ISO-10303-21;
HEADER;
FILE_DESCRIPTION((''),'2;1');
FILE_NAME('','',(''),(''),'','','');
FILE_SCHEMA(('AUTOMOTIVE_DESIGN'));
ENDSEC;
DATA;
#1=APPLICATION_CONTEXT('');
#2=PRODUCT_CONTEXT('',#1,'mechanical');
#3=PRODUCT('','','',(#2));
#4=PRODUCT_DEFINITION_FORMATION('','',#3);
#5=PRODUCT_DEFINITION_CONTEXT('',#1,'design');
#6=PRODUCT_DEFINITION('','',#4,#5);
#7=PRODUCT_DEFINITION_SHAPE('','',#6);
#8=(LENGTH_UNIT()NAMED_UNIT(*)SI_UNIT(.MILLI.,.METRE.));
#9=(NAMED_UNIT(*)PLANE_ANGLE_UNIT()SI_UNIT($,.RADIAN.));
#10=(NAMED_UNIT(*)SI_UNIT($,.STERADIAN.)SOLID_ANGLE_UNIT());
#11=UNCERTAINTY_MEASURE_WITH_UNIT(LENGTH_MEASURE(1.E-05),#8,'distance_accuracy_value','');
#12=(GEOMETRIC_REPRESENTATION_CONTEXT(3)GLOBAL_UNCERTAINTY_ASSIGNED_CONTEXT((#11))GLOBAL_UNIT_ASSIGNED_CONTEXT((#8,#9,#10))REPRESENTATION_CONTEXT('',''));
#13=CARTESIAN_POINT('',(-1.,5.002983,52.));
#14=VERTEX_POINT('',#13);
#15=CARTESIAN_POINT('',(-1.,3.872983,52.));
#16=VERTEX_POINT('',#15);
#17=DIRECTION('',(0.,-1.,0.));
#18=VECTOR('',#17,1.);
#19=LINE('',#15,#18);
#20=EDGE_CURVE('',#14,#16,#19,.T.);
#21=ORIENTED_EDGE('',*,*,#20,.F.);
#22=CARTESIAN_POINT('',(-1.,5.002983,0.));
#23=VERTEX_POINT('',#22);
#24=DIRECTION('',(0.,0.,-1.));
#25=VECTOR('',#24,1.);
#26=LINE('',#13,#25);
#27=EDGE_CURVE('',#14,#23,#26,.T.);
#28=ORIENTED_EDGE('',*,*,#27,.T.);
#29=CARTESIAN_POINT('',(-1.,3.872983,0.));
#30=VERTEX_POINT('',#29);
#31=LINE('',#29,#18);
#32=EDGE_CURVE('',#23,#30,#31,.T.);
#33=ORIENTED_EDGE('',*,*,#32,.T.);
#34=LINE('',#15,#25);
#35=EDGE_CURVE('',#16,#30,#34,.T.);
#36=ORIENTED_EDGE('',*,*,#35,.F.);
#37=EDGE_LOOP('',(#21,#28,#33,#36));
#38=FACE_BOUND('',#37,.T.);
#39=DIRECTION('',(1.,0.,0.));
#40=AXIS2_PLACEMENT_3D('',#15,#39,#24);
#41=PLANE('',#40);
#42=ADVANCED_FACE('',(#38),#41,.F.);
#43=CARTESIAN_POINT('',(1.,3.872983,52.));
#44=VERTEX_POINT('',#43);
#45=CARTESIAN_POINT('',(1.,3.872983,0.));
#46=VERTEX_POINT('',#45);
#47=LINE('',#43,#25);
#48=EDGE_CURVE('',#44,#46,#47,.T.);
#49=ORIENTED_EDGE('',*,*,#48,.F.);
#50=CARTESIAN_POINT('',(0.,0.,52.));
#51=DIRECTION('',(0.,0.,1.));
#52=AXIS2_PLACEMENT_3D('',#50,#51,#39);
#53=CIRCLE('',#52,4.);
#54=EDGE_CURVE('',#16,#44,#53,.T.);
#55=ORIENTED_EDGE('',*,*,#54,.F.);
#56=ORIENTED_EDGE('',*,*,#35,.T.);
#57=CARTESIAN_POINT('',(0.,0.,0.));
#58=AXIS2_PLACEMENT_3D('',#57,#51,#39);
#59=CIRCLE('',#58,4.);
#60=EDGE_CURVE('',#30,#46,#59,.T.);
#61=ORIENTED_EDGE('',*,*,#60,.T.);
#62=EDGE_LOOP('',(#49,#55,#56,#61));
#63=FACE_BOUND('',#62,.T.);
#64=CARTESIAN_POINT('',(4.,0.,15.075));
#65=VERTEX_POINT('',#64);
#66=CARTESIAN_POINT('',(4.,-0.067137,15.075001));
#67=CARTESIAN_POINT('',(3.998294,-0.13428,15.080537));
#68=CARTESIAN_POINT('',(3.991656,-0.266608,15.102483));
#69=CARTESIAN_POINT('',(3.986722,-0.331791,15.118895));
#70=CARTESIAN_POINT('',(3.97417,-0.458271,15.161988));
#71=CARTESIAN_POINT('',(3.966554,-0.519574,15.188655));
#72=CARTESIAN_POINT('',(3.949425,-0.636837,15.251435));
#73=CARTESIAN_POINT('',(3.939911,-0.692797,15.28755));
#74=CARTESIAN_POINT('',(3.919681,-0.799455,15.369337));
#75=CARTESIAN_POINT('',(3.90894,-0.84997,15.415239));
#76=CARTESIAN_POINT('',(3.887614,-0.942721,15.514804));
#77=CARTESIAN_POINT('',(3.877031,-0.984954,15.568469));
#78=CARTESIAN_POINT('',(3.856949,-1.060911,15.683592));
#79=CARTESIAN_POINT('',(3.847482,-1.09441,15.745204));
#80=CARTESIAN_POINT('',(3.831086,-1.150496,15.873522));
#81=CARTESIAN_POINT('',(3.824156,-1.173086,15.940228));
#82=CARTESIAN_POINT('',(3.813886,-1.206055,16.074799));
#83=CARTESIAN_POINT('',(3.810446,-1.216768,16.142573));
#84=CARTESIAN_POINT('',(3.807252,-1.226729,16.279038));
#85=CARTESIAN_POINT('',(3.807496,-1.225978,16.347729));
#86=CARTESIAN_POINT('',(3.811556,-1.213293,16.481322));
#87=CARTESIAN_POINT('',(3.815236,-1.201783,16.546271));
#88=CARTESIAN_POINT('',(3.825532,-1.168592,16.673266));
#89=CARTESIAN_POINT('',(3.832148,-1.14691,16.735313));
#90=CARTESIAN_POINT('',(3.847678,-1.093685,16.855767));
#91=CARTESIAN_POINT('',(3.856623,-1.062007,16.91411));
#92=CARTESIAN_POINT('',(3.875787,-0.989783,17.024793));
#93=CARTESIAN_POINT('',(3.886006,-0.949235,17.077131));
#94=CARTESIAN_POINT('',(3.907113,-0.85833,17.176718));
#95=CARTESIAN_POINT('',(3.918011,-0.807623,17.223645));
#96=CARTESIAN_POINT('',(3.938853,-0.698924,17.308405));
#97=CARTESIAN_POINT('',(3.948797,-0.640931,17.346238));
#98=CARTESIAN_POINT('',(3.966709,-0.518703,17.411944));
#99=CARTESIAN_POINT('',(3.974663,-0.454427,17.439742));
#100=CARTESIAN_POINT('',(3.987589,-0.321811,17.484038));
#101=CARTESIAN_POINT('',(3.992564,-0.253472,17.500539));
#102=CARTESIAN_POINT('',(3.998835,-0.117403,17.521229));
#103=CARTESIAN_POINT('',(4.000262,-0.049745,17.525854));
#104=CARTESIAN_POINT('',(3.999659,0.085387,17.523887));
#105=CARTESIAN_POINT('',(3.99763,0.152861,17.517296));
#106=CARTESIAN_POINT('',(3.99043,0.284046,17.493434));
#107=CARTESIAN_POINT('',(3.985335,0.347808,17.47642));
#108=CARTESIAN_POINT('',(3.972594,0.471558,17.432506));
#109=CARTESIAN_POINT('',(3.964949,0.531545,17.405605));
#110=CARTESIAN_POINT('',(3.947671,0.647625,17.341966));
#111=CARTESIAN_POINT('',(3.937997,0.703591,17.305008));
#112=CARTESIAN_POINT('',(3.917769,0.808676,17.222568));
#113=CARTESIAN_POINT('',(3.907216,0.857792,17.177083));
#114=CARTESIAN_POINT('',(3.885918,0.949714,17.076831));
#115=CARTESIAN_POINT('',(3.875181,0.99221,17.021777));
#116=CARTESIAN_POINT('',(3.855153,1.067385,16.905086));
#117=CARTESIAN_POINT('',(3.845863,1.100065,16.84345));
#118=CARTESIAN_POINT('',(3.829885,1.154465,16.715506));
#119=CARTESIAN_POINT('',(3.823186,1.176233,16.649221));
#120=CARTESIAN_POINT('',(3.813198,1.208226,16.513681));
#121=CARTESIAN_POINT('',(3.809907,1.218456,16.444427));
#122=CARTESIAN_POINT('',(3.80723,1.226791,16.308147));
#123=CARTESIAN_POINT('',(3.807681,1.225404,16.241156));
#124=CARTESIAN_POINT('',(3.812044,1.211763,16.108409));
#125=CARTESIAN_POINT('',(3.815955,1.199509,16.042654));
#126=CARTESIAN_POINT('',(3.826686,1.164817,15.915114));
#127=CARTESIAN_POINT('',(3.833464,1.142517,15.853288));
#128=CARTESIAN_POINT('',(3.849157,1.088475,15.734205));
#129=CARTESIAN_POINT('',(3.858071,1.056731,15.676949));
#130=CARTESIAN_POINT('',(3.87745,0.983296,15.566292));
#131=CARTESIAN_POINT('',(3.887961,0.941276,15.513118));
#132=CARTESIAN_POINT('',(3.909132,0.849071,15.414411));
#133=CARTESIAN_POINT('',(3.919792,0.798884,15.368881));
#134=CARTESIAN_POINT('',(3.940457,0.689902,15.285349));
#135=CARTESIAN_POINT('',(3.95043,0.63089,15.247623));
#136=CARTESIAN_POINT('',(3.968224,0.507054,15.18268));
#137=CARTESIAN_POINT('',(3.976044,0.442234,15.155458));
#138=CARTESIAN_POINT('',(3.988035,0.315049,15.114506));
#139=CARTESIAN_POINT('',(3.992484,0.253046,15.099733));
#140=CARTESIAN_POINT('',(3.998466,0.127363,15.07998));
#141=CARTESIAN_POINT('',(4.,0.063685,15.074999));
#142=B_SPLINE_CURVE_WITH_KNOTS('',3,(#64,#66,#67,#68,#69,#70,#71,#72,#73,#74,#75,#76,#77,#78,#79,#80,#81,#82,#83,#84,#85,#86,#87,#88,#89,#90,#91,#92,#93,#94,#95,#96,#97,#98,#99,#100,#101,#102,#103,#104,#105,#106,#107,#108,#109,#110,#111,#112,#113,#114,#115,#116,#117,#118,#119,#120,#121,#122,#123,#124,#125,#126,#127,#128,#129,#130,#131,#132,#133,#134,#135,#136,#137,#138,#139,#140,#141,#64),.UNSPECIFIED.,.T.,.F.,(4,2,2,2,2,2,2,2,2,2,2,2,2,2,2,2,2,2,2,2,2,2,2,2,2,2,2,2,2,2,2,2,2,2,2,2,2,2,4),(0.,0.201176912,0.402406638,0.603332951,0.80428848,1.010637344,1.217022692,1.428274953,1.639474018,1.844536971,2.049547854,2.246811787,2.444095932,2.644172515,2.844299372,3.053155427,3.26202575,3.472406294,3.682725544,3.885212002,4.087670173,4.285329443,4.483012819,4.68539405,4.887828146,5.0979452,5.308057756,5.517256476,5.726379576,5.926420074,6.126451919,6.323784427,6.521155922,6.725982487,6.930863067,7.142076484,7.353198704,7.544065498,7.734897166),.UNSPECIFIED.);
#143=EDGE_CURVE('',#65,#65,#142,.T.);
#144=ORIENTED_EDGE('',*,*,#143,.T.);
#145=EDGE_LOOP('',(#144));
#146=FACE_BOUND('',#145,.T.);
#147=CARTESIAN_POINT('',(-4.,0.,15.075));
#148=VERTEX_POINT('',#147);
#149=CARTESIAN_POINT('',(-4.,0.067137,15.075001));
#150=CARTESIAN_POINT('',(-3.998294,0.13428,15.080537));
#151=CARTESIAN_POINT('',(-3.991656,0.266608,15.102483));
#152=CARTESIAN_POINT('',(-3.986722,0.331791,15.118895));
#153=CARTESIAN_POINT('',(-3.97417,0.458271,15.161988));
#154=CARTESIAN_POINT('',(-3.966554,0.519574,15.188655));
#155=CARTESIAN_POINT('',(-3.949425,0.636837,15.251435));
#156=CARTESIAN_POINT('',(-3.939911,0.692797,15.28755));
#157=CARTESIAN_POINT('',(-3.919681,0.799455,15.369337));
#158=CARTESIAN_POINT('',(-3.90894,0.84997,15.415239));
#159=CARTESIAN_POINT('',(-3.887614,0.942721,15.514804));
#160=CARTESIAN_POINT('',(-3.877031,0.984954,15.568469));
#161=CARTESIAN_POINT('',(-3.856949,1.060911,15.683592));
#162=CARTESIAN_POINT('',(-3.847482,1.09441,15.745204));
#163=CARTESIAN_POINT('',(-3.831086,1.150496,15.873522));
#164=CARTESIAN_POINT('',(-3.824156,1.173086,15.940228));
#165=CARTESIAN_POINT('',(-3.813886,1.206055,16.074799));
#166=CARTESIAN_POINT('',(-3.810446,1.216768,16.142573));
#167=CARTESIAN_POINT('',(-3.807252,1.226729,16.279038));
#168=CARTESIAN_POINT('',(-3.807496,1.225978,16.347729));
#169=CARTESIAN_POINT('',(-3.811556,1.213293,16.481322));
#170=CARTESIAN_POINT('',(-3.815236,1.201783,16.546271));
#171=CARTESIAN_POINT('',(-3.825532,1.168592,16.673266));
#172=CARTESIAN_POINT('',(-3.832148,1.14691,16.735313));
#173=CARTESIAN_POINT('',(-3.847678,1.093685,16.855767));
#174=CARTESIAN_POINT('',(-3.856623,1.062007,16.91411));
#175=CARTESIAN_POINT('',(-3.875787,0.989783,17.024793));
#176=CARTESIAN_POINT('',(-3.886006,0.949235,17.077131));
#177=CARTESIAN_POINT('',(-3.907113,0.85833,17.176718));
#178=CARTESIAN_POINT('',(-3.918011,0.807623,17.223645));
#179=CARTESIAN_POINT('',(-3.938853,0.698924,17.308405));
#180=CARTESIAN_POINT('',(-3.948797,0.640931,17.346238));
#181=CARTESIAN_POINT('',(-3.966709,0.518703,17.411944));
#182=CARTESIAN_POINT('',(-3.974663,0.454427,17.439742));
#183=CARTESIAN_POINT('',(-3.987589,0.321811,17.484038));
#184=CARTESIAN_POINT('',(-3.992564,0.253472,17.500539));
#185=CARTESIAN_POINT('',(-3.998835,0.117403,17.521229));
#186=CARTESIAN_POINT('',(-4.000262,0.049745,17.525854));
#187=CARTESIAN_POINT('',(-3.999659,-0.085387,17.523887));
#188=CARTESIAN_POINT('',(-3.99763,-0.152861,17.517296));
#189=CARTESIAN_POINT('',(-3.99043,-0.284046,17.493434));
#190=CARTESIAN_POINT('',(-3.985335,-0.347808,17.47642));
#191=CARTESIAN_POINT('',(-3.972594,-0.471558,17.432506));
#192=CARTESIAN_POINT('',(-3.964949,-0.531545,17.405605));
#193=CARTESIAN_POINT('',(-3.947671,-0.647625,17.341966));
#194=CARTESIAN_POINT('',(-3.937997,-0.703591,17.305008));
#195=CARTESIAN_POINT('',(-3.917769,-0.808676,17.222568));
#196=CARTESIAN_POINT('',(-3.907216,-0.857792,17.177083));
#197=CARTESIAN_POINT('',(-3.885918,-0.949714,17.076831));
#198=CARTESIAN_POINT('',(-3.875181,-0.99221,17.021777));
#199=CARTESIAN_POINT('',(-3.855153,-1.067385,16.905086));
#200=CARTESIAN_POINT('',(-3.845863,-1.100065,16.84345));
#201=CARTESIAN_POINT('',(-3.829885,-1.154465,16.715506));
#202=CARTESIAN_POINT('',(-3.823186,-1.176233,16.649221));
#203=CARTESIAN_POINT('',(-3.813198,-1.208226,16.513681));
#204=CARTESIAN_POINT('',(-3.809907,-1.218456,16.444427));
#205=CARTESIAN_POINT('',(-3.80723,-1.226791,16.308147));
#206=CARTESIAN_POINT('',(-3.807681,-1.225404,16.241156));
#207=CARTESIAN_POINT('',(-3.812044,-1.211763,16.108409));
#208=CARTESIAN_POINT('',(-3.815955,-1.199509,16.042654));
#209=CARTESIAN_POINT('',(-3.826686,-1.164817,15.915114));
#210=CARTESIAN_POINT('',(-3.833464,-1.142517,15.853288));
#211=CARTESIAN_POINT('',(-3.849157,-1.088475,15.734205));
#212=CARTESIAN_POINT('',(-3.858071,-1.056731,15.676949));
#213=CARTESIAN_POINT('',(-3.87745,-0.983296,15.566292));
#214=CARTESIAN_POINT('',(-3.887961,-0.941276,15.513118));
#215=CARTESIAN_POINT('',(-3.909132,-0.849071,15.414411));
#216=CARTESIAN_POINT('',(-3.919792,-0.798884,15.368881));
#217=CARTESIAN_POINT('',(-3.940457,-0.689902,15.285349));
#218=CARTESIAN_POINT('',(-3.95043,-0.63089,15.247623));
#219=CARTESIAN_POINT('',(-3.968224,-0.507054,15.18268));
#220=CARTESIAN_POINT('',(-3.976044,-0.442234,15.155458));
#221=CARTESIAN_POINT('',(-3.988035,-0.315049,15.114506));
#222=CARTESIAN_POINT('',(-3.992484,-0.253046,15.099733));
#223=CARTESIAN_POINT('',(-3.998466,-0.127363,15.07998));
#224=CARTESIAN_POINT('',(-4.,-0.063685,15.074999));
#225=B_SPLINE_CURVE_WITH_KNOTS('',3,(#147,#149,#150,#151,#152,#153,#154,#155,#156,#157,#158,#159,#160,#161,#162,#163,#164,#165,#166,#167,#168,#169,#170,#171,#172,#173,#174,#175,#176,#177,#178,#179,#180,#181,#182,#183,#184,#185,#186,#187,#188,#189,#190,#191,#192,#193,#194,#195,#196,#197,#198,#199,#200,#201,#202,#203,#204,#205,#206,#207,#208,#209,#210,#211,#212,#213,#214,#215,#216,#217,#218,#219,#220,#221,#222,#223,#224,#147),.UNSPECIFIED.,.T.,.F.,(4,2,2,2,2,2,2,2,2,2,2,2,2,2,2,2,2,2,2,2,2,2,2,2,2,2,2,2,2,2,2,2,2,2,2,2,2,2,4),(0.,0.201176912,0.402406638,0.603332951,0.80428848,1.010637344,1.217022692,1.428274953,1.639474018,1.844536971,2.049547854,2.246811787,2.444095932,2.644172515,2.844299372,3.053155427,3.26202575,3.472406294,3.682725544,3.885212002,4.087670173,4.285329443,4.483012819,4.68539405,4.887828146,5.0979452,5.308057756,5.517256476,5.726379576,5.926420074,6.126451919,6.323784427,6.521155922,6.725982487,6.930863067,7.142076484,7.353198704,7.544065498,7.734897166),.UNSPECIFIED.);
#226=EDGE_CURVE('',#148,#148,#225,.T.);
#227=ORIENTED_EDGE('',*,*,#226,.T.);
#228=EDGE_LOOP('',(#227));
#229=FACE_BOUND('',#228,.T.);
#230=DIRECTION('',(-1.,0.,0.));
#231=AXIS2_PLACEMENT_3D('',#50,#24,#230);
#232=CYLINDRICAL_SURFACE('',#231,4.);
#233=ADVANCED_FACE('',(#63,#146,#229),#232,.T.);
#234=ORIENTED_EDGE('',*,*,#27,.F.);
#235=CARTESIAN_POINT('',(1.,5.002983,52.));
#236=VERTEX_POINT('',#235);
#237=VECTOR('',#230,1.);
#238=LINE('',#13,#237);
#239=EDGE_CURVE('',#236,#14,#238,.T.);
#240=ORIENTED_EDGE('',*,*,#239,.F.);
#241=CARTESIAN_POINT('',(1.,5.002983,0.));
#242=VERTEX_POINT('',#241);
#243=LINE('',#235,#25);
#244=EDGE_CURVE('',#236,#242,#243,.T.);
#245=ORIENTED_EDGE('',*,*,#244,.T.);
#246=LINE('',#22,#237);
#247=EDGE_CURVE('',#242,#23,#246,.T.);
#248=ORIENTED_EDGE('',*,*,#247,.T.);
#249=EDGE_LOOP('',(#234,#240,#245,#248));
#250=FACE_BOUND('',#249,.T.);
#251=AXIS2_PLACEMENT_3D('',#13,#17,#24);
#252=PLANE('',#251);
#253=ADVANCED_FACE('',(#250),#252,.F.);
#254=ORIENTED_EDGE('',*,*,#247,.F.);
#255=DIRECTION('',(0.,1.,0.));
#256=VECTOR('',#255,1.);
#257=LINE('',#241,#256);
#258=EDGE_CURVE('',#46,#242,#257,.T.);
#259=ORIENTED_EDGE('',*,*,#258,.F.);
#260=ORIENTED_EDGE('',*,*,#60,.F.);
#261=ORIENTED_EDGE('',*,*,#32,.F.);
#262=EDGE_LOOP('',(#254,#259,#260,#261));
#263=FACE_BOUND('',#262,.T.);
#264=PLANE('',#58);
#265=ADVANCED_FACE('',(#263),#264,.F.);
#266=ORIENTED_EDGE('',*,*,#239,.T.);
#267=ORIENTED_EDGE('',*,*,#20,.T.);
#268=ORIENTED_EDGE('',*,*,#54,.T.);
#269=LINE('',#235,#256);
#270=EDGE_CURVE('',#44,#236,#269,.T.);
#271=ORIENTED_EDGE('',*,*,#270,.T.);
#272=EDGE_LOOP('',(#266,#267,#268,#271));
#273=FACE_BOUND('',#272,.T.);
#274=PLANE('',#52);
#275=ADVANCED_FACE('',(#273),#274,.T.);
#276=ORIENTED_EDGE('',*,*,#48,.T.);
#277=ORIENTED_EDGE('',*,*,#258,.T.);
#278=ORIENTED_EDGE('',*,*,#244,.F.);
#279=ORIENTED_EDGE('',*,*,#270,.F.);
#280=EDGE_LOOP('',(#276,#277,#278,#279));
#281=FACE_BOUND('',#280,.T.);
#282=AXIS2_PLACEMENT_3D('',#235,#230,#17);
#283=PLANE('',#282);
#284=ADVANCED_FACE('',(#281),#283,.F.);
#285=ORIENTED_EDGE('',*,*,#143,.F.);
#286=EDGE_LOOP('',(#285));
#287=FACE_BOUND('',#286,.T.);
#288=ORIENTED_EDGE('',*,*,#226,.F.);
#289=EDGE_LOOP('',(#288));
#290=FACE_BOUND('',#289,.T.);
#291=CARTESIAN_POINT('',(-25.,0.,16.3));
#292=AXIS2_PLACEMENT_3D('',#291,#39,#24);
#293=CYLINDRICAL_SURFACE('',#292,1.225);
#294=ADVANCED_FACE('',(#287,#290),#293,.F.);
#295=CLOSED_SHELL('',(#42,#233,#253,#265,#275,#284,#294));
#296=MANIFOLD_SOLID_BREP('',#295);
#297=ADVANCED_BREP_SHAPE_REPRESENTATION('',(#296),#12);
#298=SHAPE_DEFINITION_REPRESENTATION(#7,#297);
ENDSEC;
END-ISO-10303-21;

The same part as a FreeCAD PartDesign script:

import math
import FreeCAD as App
import Part
import Sketcher

doc = App.newDocument("Part")
body = doc.addObject("PartDesign::Body", "Body")

# Sketch on XY plane
sketch1 = body.newObject("Sketcher::SketchObject", "Sketch")
sketch1.AttachmentSupport = (doc.getObject("XY_Plane"), [""])
sketch1.MapMode = "FlatFace"
sketch1.addGeometry([
    Part.LineSegment(App.Vector(-1, 5, 0), App.Vector(-1, 3.9, 0)),
    Part.ArcOfCircle(Part.Circle(App.Vector(0, 0, 0), App.Vector(0, 0, 1), 4), math.radians(104), math.radians(436)),
    Part.LineSegment(App.Vector(1, 3.9, 0), App.Vector(1, 5, 0)),
    Part.LineSegment(App.Vector(1, 5, 0), App.Vector(-1, 5, 0)),
], False)
sketch1.addConstraint([
    Sketcher.Constraint("Coincident", 0, 2, 1, 1),
    Sketcher.Constraint("Coincident", 1, 2, 2, 1),
    Sketcher.Constraint("Coincident", 2, 2, 3, 1),
    Sketcher.Constraint("Coincident", 3, 2, 0, 1),
    Sketcher.Constraint("Vertical", 0),
    Sketcher.Constraint("Vertical", 2),
    Sketcher.Constraint("Horizontal", 3),
    Sketcher.Constraint("Coincident", 1, 3, -1, 1),
    Sketcher.Constraint("Horizontal", 0, 2, 1, 2),
    Sketcher.Constraint("Radius", 1, 4.0),
    Sketcher.Constraint("DistanceX", 3, 2, 3, 1, 2.0),
    Sketcher.Constraint("DistanceY", 0, 2, 0, 1, 1.13),
])
pad1 = body.newObject("PartDesign::Pad", "Pad")
pad1.Profile = sketch1
pad1.Length = 52

# Sketch on YZ plane
sketch2 = body.newObject("Sketcher::SketchObject", "Sketch001")
sketch2.AttachmentSupport = (doc.getObject("YZ_Plane"), [""])
sketch2.MapMode = "FlatFace"
sketch2.addGeometry(Part.Circle(App.Vector(0, 16.3, 0), App.Vector(0, 0, 1), 1.2), False)
sketch2.addConstraint([
    Sketcher.Constraint("PointOnObject", 0, 3, -2),
    Sketcher.Constraint("Diameter", 0, 2.45),
    Sketcher.Constraint("DistanceY", -1, 1, 0, 3, 16.3),
])
pocket1 = body.newObject("PartDesign::Pocket", "Pocket")
pocket1.Profile = sketch2
pocket1.Length = 50
pocket1.Midplane = True

doc.recompute()
